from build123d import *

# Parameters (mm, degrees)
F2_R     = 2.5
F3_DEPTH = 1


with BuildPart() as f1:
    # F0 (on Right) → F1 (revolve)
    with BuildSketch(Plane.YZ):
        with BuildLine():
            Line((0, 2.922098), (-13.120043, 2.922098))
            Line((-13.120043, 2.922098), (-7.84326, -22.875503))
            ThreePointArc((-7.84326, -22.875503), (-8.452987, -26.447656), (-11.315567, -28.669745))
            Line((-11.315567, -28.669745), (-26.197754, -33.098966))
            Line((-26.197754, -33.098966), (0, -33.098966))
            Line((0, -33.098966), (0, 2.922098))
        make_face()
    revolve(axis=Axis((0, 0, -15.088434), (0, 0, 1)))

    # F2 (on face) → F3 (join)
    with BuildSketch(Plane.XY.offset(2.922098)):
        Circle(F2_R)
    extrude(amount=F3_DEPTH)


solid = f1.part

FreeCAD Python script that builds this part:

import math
import FreeCAD as App
import Part
import Sketcher

V = App.Vector
Q = App.Units.Quantity

doc = App.newDocument("Part")
body = doc.addObject("PartDesign::Body", "Body")

# Sketch on YZ plane
sketch1 = body.newObject("Sketcher::SketchObject", "Sketch")
sketch1.AttachmentSupport = (doc.getObject("YZ_Plane"), [""])
sketch1.MapMode = "FlatFace"
sketch1.addGeometry([
    Part.LineSegment(V(0, 2.922098, 0), V(-13.120043, 2.922098, 0)),  # 0
    Part.LineSegment(V(-13.120043, 2.922098, 0), V(-7.84326, -22.875503, 0)),  # 1
    Part.ArcOfCircle(Part.Circle(V(-12.741836, -23.877484, 0), V(0, 0, 1), 5.000001), math.radians(-73.425983), math.radians(11.560121)),  # 2
    Part.LineSegment(V(-11.315567, -28.669745, 0), V(-26.197754, -33.098966, 0)),  # 3
    Part.LineSegment(V(-26.197754, -33.098966, 0), V(0, -33.098966, 0)),  # 4
    Part.LineSegment(V(0, -33.098966, 0), V(0, 2.922098, 0)),  # 5
], False)
sketch1.addConstraint([
    Sketcher.Constraint("Coincident", 0, 2, 1, 1),
    Sketcher.Constraint("Tangent", 1, 2, 2, 2),
    Sketcher.Constraint("Tangent", 2, 1, 3, 1),
    Sketcher.Constraint("Coincident", 3, 2, 4, 1),
    Sketcher.Constraint("Coincident", 4, 2, 5, 1),
    Sketcher.Constraint("Coincident", 5, 2, 0, 1),
    Sketcher.Constraint("Horizontal", 0),
    Sketcher.Constraint("Horizontal", 4),
    Sketcher.Constraint("Vertical", 5),
    Sketcher.Constraint("PointOnObject", 4, 2, -2),
    Sketcher.Constraint("Radius", 2, Q("5.000001 mm")),
    Sketcher.Constraint("DistanceY", -1, 1, 0, 2, Q("2.922098 mm")),
    Sketcher.Constraint("DistanceY", 1, 2, 0, 2, Q("25.797601 mm")),
    Sketcher.Constraint("DistanceX", 0, 2, 0, 1, Q("13.120043 mm")),
    Sketcher.Constraint("DistanceX", 4, 1, 4, 2, Q("26.197754 mm")),
    Sketcher.Constraint("DistanceY", 5, 1, 5, 2, Q("36.021064 mm")),
    Sketcher.Constraint("DistanceX", 1, 2, -1, 1, Q("7.84326 mm")),
])
revolution = body.newObject("PartDesign::Revolution", "Revolution")
revolution.Profile = sketch1
revolution.ReferenceAxis = (sketch1, ["V_Axis"])
revolution.Angle = 360

# Sketch on XY plane
sketch2 = body.newObject("Sketcher::SketchObject", "Sketch001")
sketch2.AttachmentSupport = (doc.getObject("XY_Plane"), [""])
sketch2.MapMode = "FlatFace"
sketch2.AttachmentOffset = App.Placement(V(0, 0, 2.922098), App.Rotation())
sketch2.addGeometry(Part.Circle(V(0, 0, 0), V(0, 0, 1), 2.5), False)
sketch2.addConstraint([
    Sketcher.Constraint("Coincident", 0, 3, -1, 1),
    Sketcher.Constraint("Diameter", 0, Q("5 mm")),
])
pad1 = body.newObject("PartDesign::Pad", "Pad")
pad1.Profile = sketch2
pad1.Length = 1

doc.recompute()
